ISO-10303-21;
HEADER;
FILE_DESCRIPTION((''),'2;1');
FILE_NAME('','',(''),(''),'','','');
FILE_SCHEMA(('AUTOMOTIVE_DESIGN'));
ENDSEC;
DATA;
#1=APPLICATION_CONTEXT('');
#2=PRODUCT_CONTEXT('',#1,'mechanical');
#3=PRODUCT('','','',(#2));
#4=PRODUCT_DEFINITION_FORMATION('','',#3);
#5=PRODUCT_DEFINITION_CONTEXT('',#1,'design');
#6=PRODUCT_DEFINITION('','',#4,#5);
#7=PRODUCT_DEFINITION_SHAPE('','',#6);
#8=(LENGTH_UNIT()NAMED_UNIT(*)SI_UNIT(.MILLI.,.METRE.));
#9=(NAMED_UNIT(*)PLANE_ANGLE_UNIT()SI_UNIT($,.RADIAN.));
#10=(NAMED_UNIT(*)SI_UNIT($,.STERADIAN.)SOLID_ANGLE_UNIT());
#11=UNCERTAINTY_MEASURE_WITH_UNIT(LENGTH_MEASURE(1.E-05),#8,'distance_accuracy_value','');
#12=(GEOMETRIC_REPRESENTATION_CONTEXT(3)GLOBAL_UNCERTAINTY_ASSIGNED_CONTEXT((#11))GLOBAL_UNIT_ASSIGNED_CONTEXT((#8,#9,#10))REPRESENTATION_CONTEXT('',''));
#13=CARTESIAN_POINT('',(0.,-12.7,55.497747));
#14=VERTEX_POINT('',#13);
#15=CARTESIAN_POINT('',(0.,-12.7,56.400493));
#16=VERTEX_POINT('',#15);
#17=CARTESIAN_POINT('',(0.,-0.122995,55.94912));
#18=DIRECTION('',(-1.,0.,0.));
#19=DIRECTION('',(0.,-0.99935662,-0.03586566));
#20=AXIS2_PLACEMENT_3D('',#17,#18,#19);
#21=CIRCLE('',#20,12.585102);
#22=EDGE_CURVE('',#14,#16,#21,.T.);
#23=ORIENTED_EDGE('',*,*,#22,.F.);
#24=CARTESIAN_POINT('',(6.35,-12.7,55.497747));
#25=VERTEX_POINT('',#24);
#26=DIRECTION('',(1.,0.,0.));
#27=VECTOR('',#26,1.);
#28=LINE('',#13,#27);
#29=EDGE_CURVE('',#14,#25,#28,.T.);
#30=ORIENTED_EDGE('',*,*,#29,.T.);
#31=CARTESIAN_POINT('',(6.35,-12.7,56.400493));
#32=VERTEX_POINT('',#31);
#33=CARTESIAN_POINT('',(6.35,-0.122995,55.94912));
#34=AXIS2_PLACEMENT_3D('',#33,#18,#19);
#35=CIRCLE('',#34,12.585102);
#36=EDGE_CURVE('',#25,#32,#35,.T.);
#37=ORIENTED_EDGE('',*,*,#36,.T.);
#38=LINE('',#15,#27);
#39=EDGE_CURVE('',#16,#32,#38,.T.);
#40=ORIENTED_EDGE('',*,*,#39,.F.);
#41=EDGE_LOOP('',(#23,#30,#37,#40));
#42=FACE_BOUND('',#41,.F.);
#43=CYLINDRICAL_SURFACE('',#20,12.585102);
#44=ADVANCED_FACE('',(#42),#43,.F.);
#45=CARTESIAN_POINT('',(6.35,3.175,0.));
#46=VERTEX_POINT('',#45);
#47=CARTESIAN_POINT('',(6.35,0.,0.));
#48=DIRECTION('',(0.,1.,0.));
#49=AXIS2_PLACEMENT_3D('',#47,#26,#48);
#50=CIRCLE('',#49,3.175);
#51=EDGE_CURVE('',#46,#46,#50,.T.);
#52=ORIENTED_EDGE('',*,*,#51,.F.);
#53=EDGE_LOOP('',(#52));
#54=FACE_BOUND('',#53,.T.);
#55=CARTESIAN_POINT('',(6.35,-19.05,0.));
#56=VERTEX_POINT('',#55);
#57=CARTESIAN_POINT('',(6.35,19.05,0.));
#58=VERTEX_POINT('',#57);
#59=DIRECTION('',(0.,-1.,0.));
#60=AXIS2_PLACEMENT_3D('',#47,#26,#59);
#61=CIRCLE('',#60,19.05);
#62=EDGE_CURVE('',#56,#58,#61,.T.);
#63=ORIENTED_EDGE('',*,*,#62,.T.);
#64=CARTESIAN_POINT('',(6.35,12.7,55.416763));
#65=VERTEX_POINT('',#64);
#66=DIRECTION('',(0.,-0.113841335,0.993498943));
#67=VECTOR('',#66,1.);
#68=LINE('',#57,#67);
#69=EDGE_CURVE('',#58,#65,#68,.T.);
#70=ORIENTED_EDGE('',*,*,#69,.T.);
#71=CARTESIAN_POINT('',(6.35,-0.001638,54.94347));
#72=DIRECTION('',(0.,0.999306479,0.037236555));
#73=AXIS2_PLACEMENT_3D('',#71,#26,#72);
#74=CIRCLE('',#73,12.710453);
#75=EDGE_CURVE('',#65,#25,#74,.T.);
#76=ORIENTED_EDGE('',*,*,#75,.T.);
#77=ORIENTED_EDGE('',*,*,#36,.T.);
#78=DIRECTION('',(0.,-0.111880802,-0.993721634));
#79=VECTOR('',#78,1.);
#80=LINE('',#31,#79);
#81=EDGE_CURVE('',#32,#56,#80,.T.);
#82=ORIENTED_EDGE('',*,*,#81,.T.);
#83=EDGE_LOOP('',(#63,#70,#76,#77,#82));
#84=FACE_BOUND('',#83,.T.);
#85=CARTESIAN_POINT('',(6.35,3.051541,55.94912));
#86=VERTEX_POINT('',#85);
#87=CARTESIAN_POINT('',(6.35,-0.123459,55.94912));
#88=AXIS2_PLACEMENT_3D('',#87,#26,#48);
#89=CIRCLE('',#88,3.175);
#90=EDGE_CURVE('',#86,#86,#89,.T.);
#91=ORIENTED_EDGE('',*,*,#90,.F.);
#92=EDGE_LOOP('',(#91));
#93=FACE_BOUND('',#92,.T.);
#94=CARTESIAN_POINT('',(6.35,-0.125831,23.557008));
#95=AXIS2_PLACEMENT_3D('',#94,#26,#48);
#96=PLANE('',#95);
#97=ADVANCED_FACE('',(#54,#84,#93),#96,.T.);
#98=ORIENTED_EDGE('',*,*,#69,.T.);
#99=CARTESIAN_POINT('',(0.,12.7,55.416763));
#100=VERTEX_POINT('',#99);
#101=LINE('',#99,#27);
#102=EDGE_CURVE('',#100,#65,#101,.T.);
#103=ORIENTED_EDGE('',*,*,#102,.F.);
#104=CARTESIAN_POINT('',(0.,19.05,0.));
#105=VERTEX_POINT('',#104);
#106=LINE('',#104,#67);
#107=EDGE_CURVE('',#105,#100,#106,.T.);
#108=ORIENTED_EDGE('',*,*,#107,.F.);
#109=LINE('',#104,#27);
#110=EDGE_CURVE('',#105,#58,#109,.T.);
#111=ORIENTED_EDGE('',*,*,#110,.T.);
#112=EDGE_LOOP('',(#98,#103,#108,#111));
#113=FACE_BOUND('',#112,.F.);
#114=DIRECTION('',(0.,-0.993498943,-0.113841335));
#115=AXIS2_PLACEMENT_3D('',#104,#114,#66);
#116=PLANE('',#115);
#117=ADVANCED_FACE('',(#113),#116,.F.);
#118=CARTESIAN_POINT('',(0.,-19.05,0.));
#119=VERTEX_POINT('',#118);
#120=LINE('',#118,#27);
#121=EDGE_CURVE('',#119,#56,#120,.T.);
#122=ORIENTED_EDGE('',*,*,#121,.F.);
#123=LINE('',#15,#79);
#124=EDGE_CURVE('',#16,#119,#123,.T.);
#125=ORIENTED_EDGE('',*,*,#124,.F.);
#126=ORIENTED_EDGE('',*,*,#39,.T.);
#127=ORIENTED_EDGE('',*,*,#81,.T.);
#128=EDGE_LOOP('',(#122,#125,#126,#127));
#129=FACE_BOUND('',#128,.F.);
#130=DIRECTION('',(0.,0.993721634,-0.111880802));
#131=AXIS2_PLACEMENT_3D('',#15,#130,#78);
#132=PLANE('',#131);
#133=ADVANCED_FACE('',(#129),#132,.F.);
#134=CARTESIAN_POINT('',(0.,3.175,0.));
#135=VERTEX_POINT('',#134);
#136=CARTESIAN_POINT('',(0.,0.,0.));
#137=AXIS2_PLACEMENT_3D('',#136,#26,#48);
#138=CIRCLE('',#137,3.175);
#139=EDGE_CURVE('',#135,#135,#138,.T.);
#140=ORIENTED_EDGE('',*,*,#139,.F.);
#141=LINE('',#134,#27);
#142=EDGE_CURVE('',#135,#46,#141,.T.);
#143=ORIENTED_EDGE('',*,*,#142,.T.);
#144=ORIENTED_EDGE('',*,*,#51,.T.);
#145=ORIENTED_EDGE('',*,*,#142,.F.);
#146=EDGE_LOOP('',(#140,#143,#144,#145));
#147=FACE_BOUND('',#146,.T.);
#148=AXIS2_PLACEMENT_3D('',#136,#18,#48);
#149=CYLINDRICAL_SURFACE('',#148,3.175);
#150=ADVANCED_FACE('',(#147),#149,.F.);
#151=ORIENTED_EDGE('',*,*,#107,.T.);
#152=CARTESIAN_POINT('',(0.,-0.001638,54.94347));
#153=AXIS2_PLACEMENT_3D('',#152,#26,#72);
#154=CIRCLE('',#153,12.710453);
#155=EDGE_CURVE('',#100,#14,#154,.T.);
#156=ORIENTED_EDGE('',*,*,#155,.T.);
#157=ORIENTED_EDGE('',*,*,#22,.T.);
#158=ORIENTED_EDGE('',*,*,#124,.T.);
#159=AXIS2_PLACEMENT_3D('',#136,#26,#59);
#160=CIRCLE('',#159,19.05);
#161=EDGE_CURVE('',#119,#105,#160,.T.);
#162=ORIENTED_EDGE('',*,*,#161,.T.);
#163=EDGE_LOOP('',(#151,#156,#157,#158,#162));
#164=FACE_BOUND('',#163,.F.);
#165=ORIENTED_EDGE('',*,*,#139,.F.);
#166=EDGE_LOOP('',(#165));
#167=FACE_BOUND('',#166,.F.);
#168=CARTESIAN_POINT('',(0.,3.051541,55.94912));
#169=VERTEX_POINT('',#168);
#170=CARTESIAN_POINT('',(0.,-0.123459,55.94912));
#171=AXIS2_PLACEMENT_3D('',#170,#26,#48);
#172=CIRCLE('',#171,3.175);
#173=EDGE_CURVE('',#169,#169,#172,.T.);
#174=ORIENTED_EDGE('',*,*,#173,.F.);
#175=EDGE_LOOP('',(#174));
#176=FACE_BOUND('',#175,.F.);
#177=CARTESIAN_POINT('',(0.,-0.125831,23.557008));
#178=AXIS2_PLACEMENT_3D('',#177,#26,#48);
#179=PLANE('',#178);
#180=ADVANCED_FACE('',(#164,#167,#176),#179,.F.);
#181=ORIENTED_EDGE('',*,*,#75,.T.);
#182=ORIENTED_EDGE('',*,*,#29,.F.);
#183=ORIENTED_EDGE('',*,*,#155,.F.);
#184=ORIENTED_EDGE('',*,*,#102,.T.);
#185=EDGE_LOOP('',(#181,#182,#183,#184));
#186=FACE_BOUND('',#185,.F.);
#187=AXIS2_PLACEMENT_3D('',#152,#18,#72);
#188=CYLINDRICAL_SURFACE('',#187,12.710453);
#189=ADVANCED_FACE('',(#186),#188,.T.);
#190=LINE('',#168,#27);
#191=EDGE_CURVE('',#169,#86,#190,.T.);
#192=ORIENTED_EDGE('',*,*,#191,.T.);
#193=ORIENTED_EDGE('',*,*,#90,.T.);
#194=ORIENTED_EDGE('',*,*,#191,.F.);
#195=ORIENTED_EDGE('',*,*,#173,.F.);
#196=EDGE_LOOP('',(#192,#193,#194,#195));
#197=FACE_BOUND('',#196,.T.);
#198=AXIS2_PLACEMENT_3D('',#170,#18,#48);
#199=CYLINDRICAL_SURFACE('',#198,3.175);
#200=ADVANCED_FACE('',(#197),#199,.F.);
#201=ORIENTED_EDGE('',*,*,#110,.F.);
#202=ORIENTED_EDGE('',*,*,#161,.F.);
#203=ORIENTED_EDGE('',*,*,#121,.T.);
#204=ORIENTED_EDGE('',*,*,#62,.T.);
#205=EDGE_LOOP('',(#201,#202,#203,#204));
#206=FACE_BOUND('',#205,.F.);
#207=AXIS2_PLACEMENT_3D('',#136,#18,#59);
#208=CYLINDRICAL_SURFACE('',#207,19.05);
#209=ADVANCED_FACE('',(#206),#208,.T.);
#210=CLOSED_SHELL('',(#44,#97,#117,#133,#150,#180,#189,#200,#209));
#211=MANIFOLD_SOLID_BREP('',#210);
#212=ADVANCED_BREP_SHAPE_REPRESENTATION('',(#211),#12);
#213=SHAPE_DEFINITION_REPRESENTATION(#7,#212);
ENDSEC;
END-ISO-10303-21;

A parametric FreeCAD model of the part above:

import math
import FreeCAD as App
import Part
import Sketcher
from FreeCAD import Vector
Q = App.Units.Quantity

doc = App.newDocument("Part")
params = doc.addObject("Spreadsheet::Sheet", "Params")
for row, (alias, value) in enumerate([
    ("sketch1_diameter", "0.25 in"),
    ("sketch1_radius", "0.75 in"),
    ("pad1_length", "0.25 in"),
], start=1):
    params.set(f"A{row}", alias)
    params.set(f"B{row}", "=" + value)
    params.setAlias(f"B{row}", alias)

body = doc.addObject("PartDesign::Body", "Body")

# Sketch on YZ plane
sketch1 = body.newObject("Sketcher::SketchObject", "Sketch")
sketch1.AttachmentSupport = (doc.getObject("YZ_Plane"), [""])
sketch1.MapMode = "FlatFace"
sketch1.addGeometry([
    Part.LineSegment(Vector(-12.7, 56.400493, 0), Vector(-19.05, 0, 0)),  # 0
    Part.ArcOfCircle(Part.Circle(Vector(0, 0, 0), Vector(0, 0, 1), 19.05), math.radians(180), math.radians(360)),  # 1
    Part.LineSegment(Vector(19.05, 0, 0), Vector(12.7, 55.416763, 0)),  # 2
    Part.ArcOfCircle(Part.Circle(Vector(-0.001638, 54.94347, 0), Vector(0, 0, 1), 12.710453), math.radians(2.133991), math.radians(177.500653)),  # 3
    Part.ArcOfCircle(Part.Circle(Vector(-0.122995, 55.94912, 0), Vector(0, 0, 1), 12.585102), math.radians(177.944608), math.radians(182.055392)),  # 4
    Part.Circle(Vector(0, 0, 0), Vector(0, 0, 1), 3.175),  # 5
    Part.Circle(Vector(-0.123459, 55.94912, 0), Vector(0, 0, 1), 3.175),  # 6
], False)
sketch1.addConstraint([
    Sketcher.Constraint("Coincident", 0, 2, 1, 1),
    Sketcher.Constraint("Coincident", 1, 2, 2, 1),
    Sketcher.Constraint("Coincident", 2, 2, 3, 1),
    Sketcher.Constraint("Coincident", 3, 2, 4, 2),
    Sketcher.Constraint("Coincident", 4, 1, 0, 1),
    Sketcher.Constraint("Coincident", 1, 3, -1, 1),
    Sketcher.Constraint("Coincident", 5, 3, -1, 1),
    Sketcher.Constraint("Equal", 5, 6),
    Sketcher.Constraint("PointOnObject", 0, 2, -1),
    Sketcher.Constraint("PointOnObject", 1, 2, -1),
    Sketcher.Constraint("Horizontal", 4, 3, 6, 3),
    Sketcher.Constraint("Vertical", 3, 2, 4, 1),
    Sketcher.Constraint("Diameter", 5, Q("0.25 in")),
    Sketcher.Constraint("Radius", 1, Q("0.75 in")),
    Sketcher.Constraint("DistanceX", 3, 2, 2, 2, Q("1 in")),
    Sketcher.Constraint("DistanceX", -1, 1, 2, 2, Q("0.5 in")),
    Sketcher.Constraint("Radius", 3, Q("12.710453 mm")),
    Sketcher.Constraint("Radius", 4, Q("12.585102 mm")),
    Sketcher.Constraint("DistanceX", 3, 3, -1, 1, Q("0.001638 mm")),
    Sketcher.Constraint("DistanceY", -1, 1, 3, 3, Q("54.94347 mm")),
    Sketcher.Constraint("DistanceY", -1, 1, 4, 3, Q("55.94912 mm")),
    Sketcher.Constraint("DistanceX", 6, 3, -1, 1, Q("0.123459 mm")),
])
sketch1.setExpression("Constraints[12]", "Params.sketch1_diameter")
sketch1.setExpression("Constraints[13]", "Params.sketch1_radius")
pad1 = body.newObject("PartDesign::Pad", "Pad")
pad1.Profile = sketch1
pad1.setExpression("Length", "Params.pad1_length")

doc.recompute()
